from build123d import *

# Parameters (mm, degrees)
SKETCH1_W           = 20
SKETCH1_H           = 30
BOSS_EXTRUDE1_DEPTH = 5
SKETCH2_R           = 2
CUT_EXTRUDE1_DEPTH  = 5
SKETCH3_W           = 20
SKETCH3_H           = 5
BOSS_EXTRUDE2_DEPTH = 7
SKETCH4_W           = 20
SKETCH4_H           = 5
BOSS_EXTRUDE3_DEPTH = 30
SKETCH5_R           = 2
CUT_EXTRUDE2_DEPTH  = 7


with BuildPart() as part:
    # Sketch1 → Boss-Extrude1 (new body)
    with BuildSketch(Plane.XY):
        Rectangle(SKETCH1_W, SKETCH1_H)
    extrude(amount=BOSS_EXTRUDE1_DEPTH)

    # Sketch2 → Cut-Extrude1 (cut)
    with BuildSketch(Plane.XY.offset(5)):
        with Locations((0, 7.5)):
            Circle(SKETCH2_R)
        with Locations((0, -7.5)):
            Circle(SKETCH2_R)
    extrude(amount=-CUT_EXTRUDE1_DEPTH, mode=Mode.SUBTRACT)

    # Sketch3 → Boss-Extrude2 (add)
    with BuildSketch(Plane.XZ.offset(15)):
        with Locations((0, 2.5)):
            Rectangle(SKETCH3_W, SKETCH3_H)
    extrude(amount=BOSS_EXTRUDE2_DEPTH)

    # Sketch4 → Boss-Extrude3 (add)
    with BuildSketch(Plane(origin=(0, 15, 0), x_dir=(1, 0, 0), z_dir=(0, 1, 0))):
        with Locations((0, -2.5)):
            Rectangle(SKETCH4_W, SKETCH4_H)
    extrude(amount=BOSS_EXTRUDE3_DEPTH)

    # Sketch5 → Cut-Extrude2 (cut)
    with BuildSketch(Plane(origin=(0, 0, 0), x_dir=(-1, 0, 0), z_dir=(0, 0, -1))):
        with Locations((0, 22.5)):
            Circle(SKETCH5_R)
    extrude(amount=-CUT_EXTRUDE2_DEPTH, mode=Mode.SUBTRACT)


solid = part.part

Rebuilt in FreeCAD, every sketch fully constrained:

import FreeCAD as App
import Part
import Sketcher
Q = App.Units.Quantity

doc = App.newDocument("Part")
params = doc.addObject("Spreadsheet::Sheet", "Params")
for row, (alias, value) in enumerate([
    ("sketch1_width", "20 mm"),
    ("sketch1_height", "30 mm"),
    ("pad1_length", "5 mm"),
    ("sketch2_diameter", "4 mm"),
    ("pocket1_length", "5 mm"),
    ("sketch3_width", "20 mm"),
    ("sketch3_height", "5 mm"),
    ("pad2_length", "7 mm"),
    ("sketch4_width", "20 mm"),
    ("sketch4_height", "5 mm"),
    ("pad3_length", "30 mm"),
    ("sketch5_diameter", "4 mm"),
    ("pocket2_length", "7 mm"),
], start=1):
    params.set(f"A{row}", alias)
    params.set(f"B{row}", "=" + value)
    params.setAlias(f"B{row}", alias)

body = doc.addObject("PartDesign::Body", "Body")

# Sketch on XY plane
sketch1 = doc.addObject("Sketcher::SketchObject", "Sketch")
body.addObject(sketch1)
sketch1.AttachmentSupport = (doc.XY_Plane, [""])
sketch1.MapMode = "FlatFace"
sketch1.addGeometry([
    Part.LineSegment(App.Vector(-10, 15, 0), App.Vector(-10, -15, 0)),
    Part.LineSegment(App.Vector(-10, -15, 0), App.Vector(10, -15, 0)),
    Part.LineSegment(App.Vector(10, -15, 0), App.Vector(10, 15, 0)),
    Part.LineSegment(App.Vector(10, 15, 0), App.Vector(-10, 15, 0)),
], False)
sketch1.addConstraint([
    Sketcher.Constraint("Coincident", 0, 2, 1, 1),
    Sketcher.Constraint("Coincident", 1, 2, 2, 1),
    Sketcher.Constraint("Coincident", 2, 2, 3, 1),
    Sketcher.Constraint("Coincident", 3, 2, 0, 1),
    Sketcher.Constraint("Vertical", 0),
    Sketcher.Constraint("Horizontal", 1),
    Sketcher.Constraint("Vertical", 2),
    Sketcher.Constraint("Horizontal", 3),
    Sketcher.Constraint("Symmetric", 0, 2, 2, 2, -1, 1),
    Sketcher.Constraint("DistanceX", 1, 1, 1, 2, Q("20 mm")),
    Sketcher.Constraint("DistanceY", 0, 2, 0, 1, Q("30 mm")),
])
sketch1.setExpression("Constraints[9]", "Params.sketch1_width")
sketch1.setExpression("Constraints[10]", "Params.sketch1_height")
pad1 = doc.addObject("PartDesign::Pad", "Pad")
body.addObject(pad1)
pad1.Profile = sketch1
pad1.setExpression("Length", "Params.pad1_length")

# Sketch on XY plane
sketch2 = doc.addObject("Sketcher::SketchObject", "Sketch001")
body.addObject(sketch2)
sketch2.AttachmentSupport = (doc.XY_Plane, [""])
sketch2.MapMode = "FlatFace"
sketch2.AttachmentOffset = App.Placement(App.Vector(0, 0, 5), App.Rotation())
sketch2.addGeometry([
    Part.Circle(App.Vector(0, 7.5, 0), App.Vector(0, 0, 1), 2),
    Part.Circle(App.Vector(0, -7.5, 0), App.Vector(0, 0, 1), 2),
], False)
sketch2.addConstraint([
    Sketcher.Constraint("Equal", 0, 1),
    Sketcher.Constraint("Symmetric", 0, 3, 1, 3, -1, 1),
    Sketcher.Constraint("PointOnObject", 0, 3, -2),
    Sketcher.Constraint("Diameter", 0, Q("4 mm")),
    Sketcher.Constraint("DistanceY", 1, 3, 0, 3, Q("15 mm")),
])
sketch2.setExpression("Constraints[3]", "Params.sketch2_diameter")
pocket1 = doc.addObject("PartDesign::Pocket", "Pocket")
body.addObject(pocket1)
pocket1.Profile = sketch2
pocket1.setExpression("Length", "Params.pocket1_length")

# Sketch on XZ plane
sketch3 = doc.addObject("Sketcher::SketchObject", "Sketch002")
body.addObject(sketch3)
sketch3.AttachmentSupport = (doc.XZ_Plane, [""])
sketch3.MapMode = "FlatFace"
sketch3.AttachmentOffset = App.Placement(App.Vector(0, 0, 15), App.Rotation())
sketch3.addGeometry([
    Part.LineSegment(App.Vector(-10, 5, 0), App.Vector(-10, 0, 0)),
    Part.LineSegment(App.Vector(-10, 0, 0), App.Vector(10, 0, 0)),
    Part.LineSegment(App.Vector(10, 0, 0), App.Vector(10, 5, 0)),
    Part.LineSegment(App.Vector(10, 5, 0), App.Vector(-10, 5, 0)),
], False)
sketch3.addConstraint([
    Sketcher.Constraint("Coincident", 0, 2, 1, 1),
    Sketcher.Constraint("Coincident", 1, 2, 2, 1),
    Sketcher.Constraint("Coincident", 2, 2, 3, 1),
    Sketcher.Constraint("Coincident", 3, 2, 0, 1),
    Sketcher.Constraint("Vertical", 0),
    Sketcher.Constraint("Horizontal", 1),
    Sketcher.Constraint("Vertical", 2),
    Sketcher.Constraint("Horizontal", 3),
    Sketcher.Constraint("Symmetric", 0, 2, 1, 2, -1, 1),
    Sketcher.Constraint("DistanceX", 1, 1, 1, 2, Q("20 mm")),
    Sketcher.Constraint("DistanceY", 0, 2, 0, 1, Q("5 mm")),
])
sketch3.setExpression("Constraints[9]", "Params.sketch3_width")
sketch3.setExpression("Constraints[10]", "Params.sketch3_height")
pad2 = doc.addObject("PartDesign::Pad", "Pad001")
body.addObject(pad2)
pad2.Profile = sketch3
pad2.setExpression("Length", "Params.pad2_length")

# Sketch on XZ plane
sketch4 = doc.addObject("Sketcher::SketchObject", "Sketch003")
body.addObject(sketch4)
sketch4.AttachmentSupport = (doc.XZ_Plane, [""])
sketch4.MapMode = "FlatFace"
sketch4.AttachmentOffset = App.Placement(App.Vector(0, 0, -15), App.Rotation())
sketch4.addGeometry([
    Part.LineSegment(App.Vector(-10, 0, 0), App.Vector(-10, 5, 0)),
    Part.LineSegment(App.Vector(-10, 5, 0), App.Vector(10, 5, 0)),
    Part.LineSegment(App.Vector(10, 5, 0), App.Vector(10, 0, 0)),
    Part.LineSegment(App.Vector(10, 0, 0), App.Vector(-10, 0, 0)),
], False)
sketch4.addConstraint([
    Sketcher.Constraint("Coincident", 0, 2, 1, 1),
    Sketcher.Constraint("Coincident", 1, 2, 2, 1),
    Sketcher.Constraint("Coincident", 2, 2, 3, 1),
    Sketcher.Constraint("Coincident", 3, 2, 0, 1),
    Sketcher.Constraint("Vertical", 0),
    Sketcher.Constraint("Horizontal", 1),
    Sketcher.Constraint("Vertical", 2),
    Sketcher.Constraint("Horizontal", 3),
    Sketcher.Constraint("Symmetric", 2, 2, 3, 2, -1, 1),
    Sketcher.Constraint("DistanceX", 1, 1, 1, 2, Q("20 mm")),
    Sketcher.Constraint("DistanceY", 0, 1, 0, 2, Q("5 mm")),
])
sketch4.setExpression("Constraints[9]", "Params.sketch4_width")
sketch4.setExpression("Constraints[10]", "Params.sketch4_height")
pad3 = doc.addObject("PartDesign::Pad", "Pad002")
body.addObject(pad3)
pad3.Profile = sketch4
pad3.setExpression("Length", "Params.pad3_length")
pad3.Reversed = True

# Sketch on XY plane
sketch5 = doc.addObject("Sketcher::SketchObject", "Sketch004")
body.addObject(sketch5)
sketch5.AttachmentSupport = (doc.XY_Plane, [""])
sketch5.MapMode = "FlatFace"
sketch5.addGeometry(Part.Circle(App.Vector(0, 22.5, 0), App.Vector(0, 0, 1), 2), False)
sketch5.addConstraint([
    Sketcher.Constraint("PointOnObject", 0, 3, -2),
    Sketcher.Constraint("Diameter", 0, Q("4 mm")),
    Sketcher.Constraint("DistanceY", -1, 1, 0, 3, Q("22.5 mm")),
])
sketch5.setExpression("Constraints[1]", "Params.sketch5_diameter")
pocket2 = doc.addObject("PartDesign::Pocket", "Pocket001")
body.addObject(pocket2)
pocket2.Profile = sketch5
pocket2.setExpression("Length", "Params.pocket2_length")
pocket2.Reversed = True

doc.recompute()
